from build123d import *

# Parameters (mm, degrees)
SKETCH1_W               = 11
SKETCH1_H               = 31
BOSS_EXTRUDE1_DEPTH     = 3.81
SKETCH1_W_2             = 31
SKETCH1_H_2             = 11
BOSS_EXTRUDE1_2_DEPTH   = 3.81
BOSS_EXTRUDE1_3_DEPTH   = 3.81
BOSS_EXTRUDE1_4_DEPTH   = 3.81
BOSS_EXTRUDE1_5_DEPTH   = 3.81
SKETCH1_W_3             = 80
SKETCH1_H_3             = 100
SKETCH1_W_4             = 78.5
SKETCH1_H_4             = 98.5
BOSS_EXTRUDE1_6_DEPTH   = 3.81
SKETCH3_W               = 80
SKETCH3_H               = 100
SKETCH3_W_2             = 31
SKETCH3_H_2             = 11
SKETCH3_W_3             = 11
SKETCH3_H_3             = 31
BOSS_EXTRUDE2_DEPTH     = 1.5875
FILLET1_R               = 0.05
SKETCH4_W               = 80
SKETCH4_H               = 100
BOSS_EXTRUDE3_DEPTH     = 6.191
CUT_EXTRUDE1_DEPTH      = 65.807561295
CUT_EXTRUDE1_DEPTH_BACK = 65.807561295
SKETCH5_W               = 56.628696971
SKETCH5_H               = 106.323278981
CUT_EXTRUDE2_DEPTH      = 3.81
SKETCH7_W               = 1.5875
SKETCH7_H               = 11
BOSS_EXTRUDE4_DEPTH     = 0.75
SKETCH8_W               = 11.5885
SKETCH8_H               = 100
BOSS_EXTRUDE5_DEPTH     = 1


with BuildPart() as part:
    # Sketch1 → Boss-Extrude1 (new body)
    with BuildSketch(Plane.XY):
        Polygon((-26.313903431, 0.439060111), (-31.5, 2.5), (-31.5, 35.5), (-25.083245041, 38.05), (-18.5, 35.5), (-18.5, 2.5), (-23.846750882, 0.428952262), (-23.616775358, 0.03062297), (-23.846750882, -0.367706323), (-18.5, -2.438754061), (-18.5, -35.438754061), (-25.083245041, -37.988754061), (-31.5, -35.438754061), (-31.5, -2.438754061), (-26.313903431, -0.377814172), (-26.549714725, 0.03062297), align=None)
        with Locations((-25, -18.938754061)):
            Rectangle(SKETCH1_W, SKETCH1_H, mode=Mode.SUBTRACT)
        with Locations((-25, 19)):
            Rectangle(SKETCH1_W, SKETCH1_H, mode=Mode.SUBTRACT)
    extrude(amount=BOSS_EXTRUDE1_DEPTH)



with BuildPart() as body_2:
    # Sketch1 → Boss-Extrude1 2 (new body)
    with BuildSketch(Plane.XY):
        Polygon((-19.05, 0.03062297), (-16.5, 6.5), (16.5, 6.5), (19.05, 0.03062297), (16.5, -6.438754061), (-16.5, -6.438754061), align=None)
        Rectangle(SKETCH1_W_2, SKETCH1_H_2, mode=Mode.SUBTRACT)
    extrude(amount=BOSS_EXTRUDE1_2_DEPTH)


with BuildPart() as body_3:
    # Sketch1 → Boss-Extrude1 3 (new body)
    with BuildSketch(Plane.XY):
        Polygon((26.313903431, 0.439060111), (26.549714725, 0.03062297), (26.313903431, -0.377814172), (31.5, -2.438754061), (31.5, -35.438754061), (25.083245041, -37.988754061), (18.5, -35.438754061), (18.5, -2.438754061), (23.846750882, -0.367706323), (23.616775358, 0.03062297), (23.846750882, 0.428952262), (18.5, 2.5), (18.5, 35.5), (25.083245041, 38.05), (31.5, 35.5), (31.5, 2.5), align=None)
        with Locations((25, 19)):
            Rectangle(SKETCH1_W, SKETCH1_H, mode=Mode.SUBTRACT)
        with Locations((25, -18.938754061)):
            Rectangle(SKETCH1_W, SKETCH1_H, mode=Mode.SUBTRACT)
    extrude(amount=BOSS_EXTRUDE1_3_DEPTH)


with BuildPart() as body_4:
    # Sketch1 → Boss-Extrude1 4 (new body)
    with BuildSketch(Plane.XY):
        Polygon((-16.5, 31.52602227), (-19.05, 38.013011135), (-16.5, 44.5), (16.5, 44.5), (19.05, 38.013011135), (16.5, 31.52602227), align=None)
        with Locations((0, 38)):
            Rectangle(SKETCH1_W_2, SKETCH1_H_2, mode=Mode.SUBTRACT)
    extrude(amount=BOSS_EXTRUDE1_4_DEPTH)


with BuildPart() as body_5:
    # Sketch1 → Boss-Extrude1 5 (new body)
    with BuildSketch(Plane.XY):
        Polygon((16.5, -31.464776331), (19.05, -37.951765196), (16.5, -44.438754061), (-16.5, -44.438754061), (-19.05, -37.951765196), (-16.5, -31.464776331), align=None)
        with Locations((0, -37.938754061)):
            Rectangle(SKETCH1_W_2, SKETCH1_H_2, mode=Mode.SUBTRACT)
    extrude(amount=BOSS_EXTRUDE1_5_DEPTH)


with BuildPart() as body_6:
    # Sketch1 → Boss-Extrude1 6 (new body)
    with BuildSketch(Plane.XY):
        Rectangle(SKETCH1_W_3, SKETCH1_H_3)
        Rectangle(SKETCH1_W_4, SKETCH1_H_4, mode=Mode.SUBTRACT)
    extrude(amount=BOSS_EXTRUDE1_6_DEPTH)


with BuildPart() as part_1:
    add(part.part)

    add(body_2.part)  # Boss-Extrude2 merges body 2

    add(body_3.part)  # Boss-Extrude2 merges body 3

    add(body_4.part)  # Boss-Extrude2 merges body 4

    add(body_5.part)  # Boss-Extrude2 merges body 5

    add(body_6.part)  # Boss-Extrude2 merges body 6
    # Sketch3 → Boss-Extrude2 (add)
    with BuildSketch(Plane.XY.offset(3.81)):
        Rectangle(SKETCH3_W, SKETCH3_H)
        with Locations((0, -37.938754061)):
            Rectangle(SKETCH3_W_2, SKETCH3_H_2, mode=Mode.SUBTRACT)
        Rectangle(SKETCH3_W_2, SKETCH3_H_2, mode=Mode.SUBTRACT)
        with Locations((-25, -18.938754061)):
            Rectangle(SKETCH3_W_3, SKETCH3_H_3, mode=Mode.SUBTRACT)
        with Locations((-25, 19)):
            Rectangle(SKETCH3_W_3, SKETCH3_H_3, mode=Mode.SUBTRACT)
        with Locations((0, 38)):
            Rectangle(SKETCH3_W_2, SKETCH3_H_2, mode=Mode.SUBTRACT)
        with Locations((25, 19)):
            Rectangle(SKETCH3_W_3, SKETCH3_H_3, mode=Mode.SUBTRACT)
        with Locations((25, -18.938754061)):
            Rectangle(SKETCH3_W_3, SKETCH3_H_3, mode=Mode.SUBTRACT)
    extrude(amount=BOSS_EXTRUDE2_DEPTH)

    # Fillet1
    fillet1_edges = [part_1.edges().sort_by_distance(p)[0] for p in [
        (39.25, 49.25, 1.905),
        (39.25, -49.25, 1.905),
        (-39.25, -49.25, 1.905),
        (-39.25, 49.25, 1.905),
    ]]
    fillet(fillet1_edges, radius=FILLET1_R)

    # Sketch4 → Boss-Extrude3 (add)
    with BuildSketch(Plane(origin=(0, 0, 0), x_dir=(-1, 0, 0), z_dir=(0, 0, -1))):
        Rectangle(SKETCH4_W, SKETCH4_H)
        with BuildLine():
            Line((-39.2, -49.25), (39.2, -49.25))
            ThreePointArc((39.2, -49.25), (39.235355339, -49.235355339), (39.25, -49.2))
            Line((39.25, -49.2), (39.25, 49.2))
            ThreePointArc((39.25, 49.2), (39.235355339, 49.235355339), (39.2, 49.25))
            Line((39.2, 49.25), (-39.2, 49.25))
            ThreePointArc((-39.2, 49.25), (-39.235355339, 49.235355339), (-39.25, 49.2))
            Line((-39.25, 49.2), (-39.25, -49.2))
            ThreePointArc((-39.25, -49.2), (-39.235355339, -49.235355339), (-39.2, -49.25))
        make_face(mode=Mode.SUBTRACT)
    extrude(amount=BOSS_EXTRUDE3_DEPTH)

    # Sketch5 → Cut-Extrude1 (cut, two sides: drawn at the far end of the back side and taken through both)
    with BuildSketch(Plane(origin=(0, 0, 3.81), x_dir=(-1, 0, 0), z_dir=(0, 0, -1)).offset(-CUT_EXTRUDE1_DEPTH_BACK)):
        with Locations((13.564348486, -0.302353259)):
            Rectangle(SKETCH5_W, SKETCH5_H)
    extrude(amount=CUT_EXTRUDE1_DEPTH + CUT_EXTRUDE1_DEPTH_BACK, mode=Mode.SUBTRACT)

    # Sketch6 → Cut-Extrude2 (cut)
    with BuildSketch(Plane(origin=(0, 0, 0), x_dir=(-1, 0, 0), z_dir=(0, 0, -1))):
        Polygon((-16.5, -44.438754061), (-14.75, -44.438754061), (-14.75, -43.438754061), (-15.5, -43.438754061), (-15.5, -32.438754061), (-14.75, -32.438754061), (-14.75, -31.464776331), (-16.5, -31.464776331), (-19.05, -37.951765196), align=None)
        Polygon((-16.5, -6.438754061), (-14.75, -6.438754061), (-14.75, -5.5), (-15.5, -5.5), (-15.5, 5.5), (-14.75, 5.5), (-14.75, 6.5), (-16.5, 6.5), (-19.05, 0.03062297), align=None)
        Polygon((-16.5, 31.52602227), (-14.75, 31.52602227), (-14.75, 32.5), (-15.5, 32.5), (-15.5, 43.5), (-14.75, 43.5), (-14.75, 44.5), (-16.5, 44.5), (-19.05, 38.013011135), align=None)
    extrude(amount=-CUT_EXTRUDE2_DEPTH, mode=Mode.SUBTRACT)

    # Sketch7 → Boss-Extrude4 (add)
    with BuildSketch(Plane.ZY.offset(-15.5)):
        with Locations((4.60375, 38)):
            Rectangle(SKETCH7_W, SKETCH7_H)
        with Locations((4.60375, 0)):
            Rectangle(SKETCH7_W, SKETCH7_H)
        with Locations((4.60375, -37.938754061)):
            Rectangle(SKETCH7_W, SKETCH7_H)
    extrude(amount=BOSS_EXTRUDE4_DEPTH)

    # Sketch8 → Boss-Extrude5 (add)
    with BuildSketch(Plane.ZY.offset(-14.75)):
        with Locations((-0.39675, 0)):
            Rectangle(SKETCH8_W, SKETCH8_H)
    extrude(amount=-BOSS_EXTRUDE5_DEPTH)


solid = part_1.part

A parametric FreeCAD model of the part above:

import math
import FreeCAD as App
import Part
import Sketcher
from FreeCAD import Vector
Q = App.Units.Quantity


def edges_at(feature, points):
    """Names of the edges that pass closest to the given points."""
    edges = feature.Shape.Edges
    near = lambda p: min(range(len(edges)), key=lambda i: edges[i].distToShape(Part.Vertex(*p))[0])
    return sorted({f"Edge{near(p) + 1}" for p in points})

doc = App.newDocument("Part")
body = doc.addObject("PartDesign::Body", "Body")

# Sketch on XY plane
sketch1 = body.newObject("Sketcher::SketchObject", "Sketch")
sketch1.AttachmentSupport = (doc.getObject("XY_Plane"), [""])
sketch1.MapMode = "FlatFace"
sketch1.addGeometry([
    Part.LineSegment(Vector(-31.5, 2.5, 0), Vector(-26.31, 0.44, 0)),  # 0
    Part.LineSegment(Vector(-26.31, 0.44, 0), Vector(-26.55, 0.03, 0)),  # 1
    Part.LineSegment(Vector(-26.55, 0.03, 0), Vector(-26.31, -0.38, 0)),  # 2
    Part.LineSegment(Vector(-26.31, -0.38, 0), Vector(-31.5, -2.44, 0)),  # 3
    Part.LineSegment(Vector(-31.5, -2.44, 0), Vector(-31.5, -35.44, 0)),  # 4
    Part.LineSegment(Vector(-31.5, -35.44, 0), Vector(-25.08, -37.99, 0)),  # 5
    Part.LineSegment(Vector(-25.08, -37.99, 0), Vector(-18.5, -35.44, 0)),  # 6
    Part.LineSegment(Vector(-18.5, -35.44, 0), Vector(-18.5, -2.44, 0)),  # 7
    Part.LineSegment(Vector(-18.5, -2.44, 0), Vector(-23.85, -0.37, 0)),  # 8
    Part.LineSegment(Vector(-23.85, -0.37, 0), Vector(-23.62, 0.03, 0)),  # 9
    Part.LineSegment(Vector(-23.62, 0.03, 0), Vector(-23.85, 0.43, 0)),  # 10
    Part.LineSegment(Vector(-23.85, 0.43, 0), Vector(-18.5, 2.5, 0)),  # 11
    Part.LineSegment(Vector(-18.5, 2.5, 0), Vector(-18.5, 35.5, 0)),  # 12
    Part.LineSegment(Vector(-18.5, 35.5, 0), Vector(-25.08, 38.05, 0)),  # 13
    Part.LineSegment(Vector(-25.08, 38.05, 0), Vector(-31.5, 35.5, 0)),  # 14
    Part.LineSegment(Vector(-31.5, 35.5, 0), Vector(-31.5, 2.5, 0)),  # 15
    Part.LineSegment(Vector(-30.5, -34.44, 0), Vector(-30.5, -3.44, 0)),  # 16
    Part.LineSegment(Vector(-30.5, -3.44, 0), Vector(-19.5, -3.44, 0)),  # 17
    Part.LineSegment(Vector(-19.5, -3.44, 0), Vector(-19.5, -34.44, 0)),  # 18
    Part.LineSegment(Vector(-19.5, -34.44, 0), Vector(-30.5, -34.44, 0)),  # 19
    Part.LineSegment(Vector(-30.5, 3.5, 0), Vector(-30.5, 34.5, 0)),  # 20
    Part.LineSegment(Vector(-30.5, 34.5, 0), Vector(-19.5, 34.5, 0)),  # 21
    Part.LineSegment(Vector(-19.5, 34.5, 0), Vector(-19.5, 3.5, 0)),  # 22
    Part.LineSegment(Vector(-19.5, 3.5, 0), Vector(-30.5, 3.5, 0)),  # 23
], False)
sketch1.addConstraint([
    Sketcher.Constraint("Coincident", 0, 2, 1, 1),
    Sketcher.Constraint("Coincident", 1, 2, 2, 1),
    Sketcher.Constraint("Coincident", 2, 2, 3, 1),
    Sketcher.Constraint("Coincident", 3, 2, 4, 1),
    Sketcher.Constraint("Coincident", 4, 2, 5, 1),
    Sketcher.Constraint("Coincident", 5, 2, 6, 1),
    Sketcher.Constraint("Coincident", 6, 2, 7, 1),
    Sketcher.Constraint("Coincident", 7, 2, 8, 1),
    Sketcher.Constraint("Coincident", 8, 2, 9, 1),
    Sketcher.Constraint("Coincident", 9, 2, 10, 1),
    Sketcher.Constraint("Coincident", 10, 2, 11, 1),
    Sketcher.Constraint("Coincident", 11, 2, 12, 1),
    Sketcher.Constraint("Coincident", 12, 2, 13, 1),
    Sketcher.Constraint("Coincident", 13, 2, 14, 1),
    Sketcher.Constraint("Coincident", 14, 2, 15, 1),
    Sketcher.Constraint("Coincident", 15, 2, 0, 1),
    Sketcher.Constraint("Coincident", 16, 2, 17, 1),
    Sketcher.Constraint("Coincident", 17, 2, 18, 1),
    Sketcher.Constraint("Coincident", 18, 2, 19, 1),
    Sketcher.Constraint("Coincident", 19, 2, 16, 1),
    Sketcher.Constraint("Coincident", 20, 2, 21, 1),
    Sketcher.Constraint("Coincident", 21, 2, 22, 1),
    Sketcher.Constraint("Coincident", 22, 2, 23, 1),
    Sketcher.Constraint("Coincident", 23, 2, 20, 1),
    Sketcher.Constraint("Vertical", 4),
    Sketcher.Constraint("Vertical", 7),
    Sketcher.Constraint("Vertical", 12),
    Sketcher.Constraint("Vertical", 15),
    Sketcher.Constraint("Vertical", 16),
    Sketcher.Constraint("Horizontal", 17),
    Sketcher.Constraint("Vertical", 18),
    Sketcher.Constraint("Horizontal", 19),
    Sketcher.Constraint("Vertical", 20),
    Sketcher.Constraint("Horizontal", 21),
    Sketcher.Constraint("Vertical", 22),
    Sketcher.Constraint("Horizontal", 23),
    Sketcher.Constraint("Parallel", 0, 5),
    Sketcher.Constraint("Parallel", 1, 9),
    Sketcher.Constraint("Parallel", 2, 10),
    Sketcher.Constraint("Parallel", 6, 11),
    Sketcher.Constraint("Parallel", 8, 13),
    Sketcher.Constraint("Parallel", 3, 14),
    Sketcher.Constraint("Horizontal", 4, 2, 6, 2),
    Sketcher.Constraint("Horizontal", 3, 2, 7, 2),
    Sketcher.Constraint("Horizontal", 1, 2, 9, 2),
    Sketcher.Constraint("Horizontal", 12, 2, 14, 2),
    Sketcher.Constraint("Horizontal", 11, 2, 15, 2),
    Sketcher.Constraint("Vertical", 0, 2, 2, 2),
    Sketcher.Constraint("Vertical", 8, 2, 10, 2),
    Sketcher.Constraint("Vertical", 7, 2, 11, 2),
    Sketcher.Constraint("Vertical", 5, 2, 13, 2),
    Sketcher.Constraint("Vertical", 4, 2, 14, 2),
    Sketcher.Constraint("Vertical", 19, 2, 20, 2),
    Sketcher.Constraint("Vertical", 18, 2, 21, 2),
    Sketcher.Constraint("Equal", 7, 12),
    Sketcher.Constraint("Equal", 18, 20),
    Sketcher.Constraint("Equal", 0, 3),
    Sketcher.Constraint("DistanceX", 17, 1, 17, 2, Q("11 mm")),
    Sketcher.Constraint("DistanceY", 4, 2, 4, 1, Q("33 mm")),
    Sketcher.Constraint("DistanceY", 16, 1, 16, 2, Q("31 mm")),
    Sketcher.Constraint("Angle", 1, Q("-120 deg")),
    Sketcher.Constraint("DistanceX", 4, 2, 6, 2, Q("13 mm")),
    Sketcher.Constraint("DistanceX", 3, 2, 16, 2, Q("1 mm")),
    Sketcher.Constraint("DistanceY", 16, 2, 3, 2, Q("1 mm")),
    Sketcher.Constraint("DistanceY", 20, 2, 14, 2, Q("1 mm")),
    Sketcher.Constraint("DistanceX", 3, 2, -1, 1, Q("31.5 mm")),
    Sketcher.Constraint("DistanceY", -1, 1, 11, 2, Q("2.5 mm")),
    Sketcher.Constraint("DistanceY", -1, 1, 13, 2, Q("38.05 mm")),
    Sketcher.Constraint("Distance", 5, Q("6.904871 mm")),
    Sketcher.Constraint("Distance", 9, Q("0.459951 mm")),
    Sketcher.Constraint("DistanceY", -1, 1, 0, 2, Q("0.43906 mm")),
    Sketcher.Constraint("DistanceX", 8, 2, -1, 1, Q("23.846751 mm")),
])
pad1 = body.newObject("PartDesign::Pad", "Pad")
pad1.Profile = sketch1
pad1.Length = 3.81
body2 = doc.addObject("PartDesign::Body", "Body001")

# Sketch on XY plane
sketch2 = body2.newObject("Sketcher::SketchObject", "Sketch001")
sketch2.AttachmentSupport = (doc.getObject("XY_Plane001"), [""])
sketch2.MapMode = "FlatFace"
sketch2.addGeometry([
    Part.LineSegment(Vector(-16, 6, 0), Vector(-19, 0, 0)),  # 0
    Part.LineSegment(Vector(-19, 0, 0), Vector(-16, -6, 0)),  # 1
    Part.LineSegment(Vector(-16, -6, 0), Vector(16, -6, 0)),  # 2
    Part.LineSegment(Vector(16, -6, 0), Vector(19, 0, 0)),  # 3
    Part.LineSegment(Vector(19, 0, 0), Vector(16, 6, 0)),  # 4
    Part.LineSegment(Vector(16, 6, 0), Vector(-16, 6, 0)),  # 5
    Part.LineSegment(Vector(-16, -6, 0), Vector(-16, 6, 0)),  # 6
    Part.LineSegment(Vector(-16, 6, 0), Vector(16, 6, 0)),  # 7
    Part.LineSegment(Vector(16, 6, 0), Vector(16, -6, 0)),  # 8
    Part.LineSegment(Vector(16, -6, 0), Vector(-16, -6, 0)),  # 9
], False)
sketch2.addConstraint([
    Sketcher.Constraint("Coincident", 0, 2, 1, 1),
    Sketcher.Constraint("Coincident", 1, 2, 2, 1),
    Sketcher.Constraint("Coincident", 2, 2, 3, 1),
    Sketcher.Constraint("Coincident", 3, 2, 4, 1),
    Sketcher.Constraint("Coincident", 4, 2, 5, 1),
    Sketcher.Constraint("Coincident", 5, 2, 0, 1),
    Sketcher.Constraint("Coincident", 6, 2, 7, 1),
    Sketcher.Constraint("Coincident", 7, 2, 8, 1),
    Sketcher.Constraint("Coincident", 8, 2, 9, 1),
    Sketcher.Constraint("Coincident", 9, 2, 6, 1),
    Sketcher.Constraint("Horizontal", 2),
    Sketcher.Constraint("Horizontal", 5),
    Sketcher.Constraint("Vertical", 6),
    Sketcher.Constraint("Horizontal", 7),
    Sketcher.Constraint("Vertical", 8),
    Sketcher.Constraint("Horizontal", 9),
    Sketcher.Constraint("Symmetric", 6, 2, 8, 2, -1, 1),
    Sketcher.Constraint("Symmetric", 0, 2, 3, 2, -2),
    Sketcher.Constraint("Parallel", 0, 3),
    Sketcher.Constraint("Parallel", 1, 4),
    Sketcher.Constraint("Vertical", 2, 2, 4, 2),
    Sketcher.Constraint("Vertical", 1, 2, 5, 2),
    Sketcher.Constraint("DistanceX", 2, 1, 2, 2, Q("33 mm")),
    Sketcher.Constraint("DistanceX", 7, 1, 7, 2, Q("31 mm")),
    Sketcher.Constraint("DistanceY", 6, 1, 6, 2, Q("11 mm")),
    Sketcher.Constraint("DistanceY", 6, 2, 5, 2, Q("1 mm")),
    Sketcher.Constraint("DistanceX", 0, 2, 3, 2, Q("38.1 mm")),
    Sketcher.Constraint("Distance", 0, Q("6.9538 mm")),
])
pad2 = body2.newObject("PartDesign::Pad", "Pad001")
pad2.Profile = sketch2
pad2.Length = 3.81
body3 = doc.addObject("PartDesign::Body", "Body002")

# Sketch on XY plane
sketch3 = body3.newObject("Sketcher::SketchObject", "Sketch002")
sketch3.AttachmentSupport = (doc.getObject("XY_Plane002"), [""])
sketch3.MapMode = "FlatFace"
sketch3.addGeometry([
    Part.LineSegment(Vector(26.55, 0.03, 0), Vector(26.31, 0.44, 0)),  # 0
    Part.LineSegment(Vector(26.31, 0.44, 0), Vector(31.5, 2.5, 0)),  # 1
    Part.LineSegment(Vector(31.5, 2.5, 0), Vector(31.5, 35.5, 0)),  # 2
    Part.LineSegment(Vector(31.5, 35.5, 0), Vector(25.08, 38.05, 0)),  # 3
    Part.LineSegment(Vector(25.08, 38.05, 0), Vector(18.5, 35.5, 0)),  # 4
    Part.LineSegment(Vector(18.5, 35.5, 0), Vector(18.5, 2.5, 0)),  # 5
    Part.LineSegment(Vector(18.5, 2.5, 0), Vector(23.85, 0.43, 0)),  # 6
    Part.LineSegment(Vector(23.85, 0.43, 0), Vector(23.62, 0.03, 0)),  # 7
    Part.LineSegment(Vector(23.62, 0.03, 0), Vector(23.85, -0.37, 0)),  # 8
    Part.LineSegment(Vector(23.85, -0.37, 0), Vector(18.5, -2.44, 0)),  # 9
    Part.LineSegment(Vector(18.5, -2.44, 0), Vector(18.5, -35.44, 0)),  # 10
    Part.LineSegment(Vector(18.5, -35.44, 0), Vector(25.08, -37.99, 0)),  # 11
    Part.LineSegment(Vector(25.08, -37.99, 0), Vector(31.5, -35.44, 0)),  # 12
    Part.LineSegment(Vector(31.5, -35.44, 0), Vector(31.5, -2.44, 0)),  # 13
    Part.LineSegment(Vector(31.5, -2.44, 0), Vector(26.31, -0.38, 0)),  # 14
    Part.LineSegment(Vector(26.31, -0.38, 0), Vector(26.55, 0.03, 0)),  # 15
    Part.LineSegment(Vector(19.5, -34.44, 0), Vector(19.5, -3.44, 0)),  # 16
    Part.LineSegment(Vector(19.5, -3.44, 0), Vector(30.5, -3.44, 0)),  # 17
    Part.LineSegment(Vector(30.5, -3.44, 0), Vector(30.5, -34.44, 0)),  # 18
    Part.LineSegment(Vector(30.5, -34.44, 0), Vector(19.5, -34.44, 0)),  # 19
    Part.LineSegment(Vector(19.5, 3.5, 0), Vector(19.5, 34.5, 0)),  # 20
    Part.LineSegment(Vector(19.5, 34.5, 0), Vector(30.5, 34.5, 0)),  # 21
    Part.LineSegment(Vector(30.5, 34.5, 0), Vector(30.5, 3.5, 0)),  # 22
    Part.LineSegment(Vector(30.5, 3.5, 0), Vector(19.5, 3.5, 0)),  # 23
], False)
sketch3.addConstraint([
    Sketcher.Constraint("Coincident", 0, 2, 1, 1),
    Sketcher.Constraint("Coincident", 1, 2, 2, 1),
    Sketcher.Constraint("Coincident", 2, 2, 3, 1),
    Sketcher.Constraint("Coincident", 3, 2, 4, 1),
    Sketcher.Constraint("Coincident", 4, 2, 5, 1),
    Sketcher.Constraint("Coincident", 5, 2, 6, 1),
    Sketcher.Constraint("Coincident", 6, 2, 7, 1),
    Sketcher.Constraint("Coincident", 7, 2, 8, 1),
    Sketcher.Constraint("Coincident", 8, 2, 9, 1),
    Sketcher.Constraint("Coincident", 9, 2, 10, 1),
    Sketcher.Constraint("Coincident", 10, 2, 11, 1),
    Sketcher.Constraint("Coincident", 11, 2, 12, 1),
    Sketcher.Constraint("Coincident", 12, 2, 13, 1),
    Sketcher.Constraint("Coincident", 13, 2, 14, 1),
    Sketcher.Constraint("Coincident", 14, 2, 15, 1),
    Sketcher.Constraint("Coincident", 15, 2, 0, 1),
    Sketcher.Constraint("Coincident", 16, 2, 17, 1),
    Sketcher.Constraint("Coincident", 17, 2, 18, 1),
    Sketcher.Constraint("Coincident", 18, 2, 19, 1),
    Sketcher.Constraint("Coincident", 19, 2, 16, 1),
    Sketcher.Constraint("Coincident", 20, 2, 21, 1),
    Sketcher.Constraint("Coincident", 21, 2, 22, 1),
    Sketcher.Constraint("Coincident", 22, 2, 23, 1),
    Sketcher.Constraint("Coincident", 23, 2, 20, 1),
    Sketcher.Constraint("Vertical", 2),
    Sketcher.Constraint("Vertical", 5),
    Sketcher.Constraint("Vertical", 10),
    Sketcher.Constraint("Vertical", 13),
    Sketcher.Constraint("Vertical", 16),
    Sketcher.Constraint("Horizontal", 17),
    Sketcher.Constraint("Vertical", 18),
    Sketcher.Constraint("Horizontal", 19),
    Sketcher.Constraint("Vertical", 20),
    Sketcher.Constraint("Horizontal", 21),
    Sketcher.Constraint("Vertical", 22),
    Sketcher.Constraint("Horizontal", 23),
    Sketcher.Constraint("Parallel", 0, 8),
    Sketcher.Constraint("Parallel", 4, 9),
    Sketcher.Constraint("Parallel", 6, 11),
    Sketcher.Constraint("Parallel", 1, 12),
    Sketcher.Constraint("Parallel", 3, 14),
    Sketcher.Constraint("Parallel", 7, 15),
    Sketcher.Constraint("Horizontal", 2, 2, 4, 2),
    Sketcher.Constraint("Horizontal", 1, 2, 5, 2),
    Sketcher.Constraint("Horizontal", 10, 2, 12, 2),
    Sketcher.Constraint("Horizontal", 9, 2, 13, 2),
    Sketcher.Constraint("Horizontal", 7, 2, 15, 2),
    Sketcher.Constraint("Vertical", 6, 2, 8, 2),
    Sketcher.Constraint("Vertical", 5, 2, 9, 2),
    Sketcher.Constraint("Vertical", 3, 2, 11, 2),
    Sketcher.Constraint("Vertical", 2, 2, 12, 2),
    Sketcher.Constraint("Vertical", 0, 2, 14, 2),
    Sketcher.Constraint("Vertical", 19, 2, 20, 2),
    Sketcher.Constraint("Vertical", 18, 2, 21, 2),
    Sketcher.Constraint("Equal", 5, 10),
    Sketcher.Constraint("Equal", 18, 20),
    Sketcher.Constraint("Equal", 6, 9),
    Sketcher.Constraint("DistanceX", 17, 1, 17, 2, Q("11 mm")),
    Sketcher.Constraint("DistanceY", 2, 1, 2, 2, Q("33 mm")),
    Sketcher.Constraint("DistanceY", 16, 1, 16, 2, Q("31 mm")),
    Sketcher.Constraint("Angle", 0, Q("120 deg")),
    Sketcher.Constraint("DistanceX", 4, 2, 2, 2, Q("13 mm")),
    Sketcher.Constraint("DistanceX", 9, 2, 16, 2, Q("1 mm")),
    Sketcher.Constraint("DistanceY", 16, 2, 9, 2, Q("1 mm")),
    Sketcher.Constraint("DistanceY", 20, 2, 4, 2, Q("1 mm")),
    Sketcher.Constraint("DistanceX", -1, 1, 1, 2, Q("31.5 mm")),
    Sketcher.Constraint("DistanceY", -1, 1, 1, 2, Q("2.5 mm")),
    Sketcher.Constraint("DistanceY", -1, 1, 3, 2, Q("38.05 mm")),
    Sketcher.Constraint("Distance", 3, Q("6.904871 mm")),
    Sketcher.Constraint("Distance", 7, Q("0.459951 mm")),
    Sketcher.Constraint("DistanceY", -1, 1, 0, 2, Q("0.43906 mm")),
    Sketcher.Constraint("DistanceX", -1, 1, 6, 2, Q("23.846751 mm")),
])
pad3 = body3.newObject("PartDesign::Pad", "Pad002")
pad3.Profile = sketch3
pad3.Length = 3.81
body4 = doc.addObject("PartDesign::Body", "Body003")

# Sketch on XY plane
sketch4 = body4.newObject("Sketcher::SketchObject", "Sketch003")
sketch4.AttachmentSupport = (doc.getObject("XY_Plane003"), [""])
sketch4.MapMode = "FlatFace"
sketch4.addGeometry([
    Part.LineSegment(Vector(-19, 38, 0), Vector(-16, 32, 0)),  # 0
    Part.LineSegment(Vector(-16, 32, 0), Vector(16, 32, 0)),  # 1
    Part.LineSegment(Vector(16, 32, 0), Vector(19, 38, 0)),  # 2
    Part.LineSegment(Vector(19, 38, 0), Vector(16, 44, 0)),  # 3
    Part.LineSegment(Vector(16, 44, 0), Vector(-16, 44, 0)),  # 4
    Part.LineSegment(Vector(-16, 44, 0), Vector(-19, 38, 0)),  # 5
    Part.LineSegment(Vector(-16, 32, 0), Vector(-16, 44, 0)),  # 6
    Part.LineSegment(Vector(-16, 44, 0), Vector(16, 44, 0)),  # 7
    Part.LineSegment(Vector(16, 44, 0), Vector(16, 32, 0)),  # 8
    Part.LineSegment(Vector(16, 32, 0), Vector(-16, 32, 0)),  # 9
], False)
sketch4.addConstraint([
    Sketcher.Constraint("Coincident", 0, 2, 1, 1),
    Sketcher.Constraint("Coincident", 1, 2, 2, 1),
    Sketcher.Constraint("Coincident", 2, 2, 3, 1),
    Sketcher.Constraint("Coincident", 3, 2, 4, 1),
    Sketcher.Constraint("Coincident", 4, 2, 5, 1),
    Sketcher.Constraint("Coincident", 5, 2, 0, 1),
    Sketcher.Constraint("Coincident", 6, 2, 7, 1),
    Sketcher.Constraint("Coincident", 7, 2, 8, 1),
    Sketcher.Constraint("Coincident", 8, 2, 9, 1),
    Sketcher.Constraint("Coincident", 9, 2, 6, 1),
    Sketcher.Constraint("Horizontal", 1),
    Sketcher.Constraint("Horizontal", 4),
    Sketcher.Constraint("Vertical", 6),
    Sketcher.Constraint("Horizontal", 7),
    Sketcher.Constraint("Vertical", 8),
    Sketcher.Constraint("Horizontal", 9),
    Sketcher.Constraint("Symmetric", 2, 2, 5, 2, -2),
    Sketcher.Constraint("Parallel", 0, 3),
    Sketcher.Constraint("Parallel", 2, 5),
    Sketcher.Constraint("Vertical", 1, 2, 3, 2),
    Sketcher.Constraint("Vertical", 0, 2, 4, 2),
    Sketcher.Constraint("DistanceX", 1, 1, 1, 2, Q("33 mm")),
    Sketcher.Constraint("DistanceX", 7, 1, 7, 2, Q("31 mm")),
    Sketcher.Constraint("DistanceY", 6, 1, 6, 2, Q("11 mm")),
    Sketcher.Constraint("DistanceX", 4, 2, 6, 2, Q("1 mm")),
    Sketcher.Constraint("DistanceY", 6, 2, 4, 2, Q("1 mm")),
    Sketcher.Constraint("DistanceY", -1, 1, 3, 2, Q("44.5 mm")),
    Sketcher.Constraint("DistanceX", 5, 2, 2, 2, Q("38.1 mm")),
    Sketcher.Constraint("Distance", 0, Q("6.970188 mm")),
])
pad4 = body4.newObject("PartDesign::Pad", "Pad003")
pad4.Profile = sketch4
pad4.Length = 3.81
body5 = doc.addObject("PartDesign::Body", "Body004")

# Sketch on XY plane
sketch5 = body5.newObject("Sketcher::SketchObject", "Sketch004")
sketch5.AttachmentSupport = (doc.getObject("XY_Plane004"), [""])
sketch5.MapMode = "FlatFace"
sketch5.addGeometry([
    Part.LineSegment(Vector(19, -38, 0), Vector(16, -31, 0)),  # 0
    Part.LineSegment(Vector(16, -31, 0), Vector(-16, -31, 0)),  # 1
    Part.LineSegment(Vector(-16, -31, 0), Vector(-19, -38, 0)),  # 2
    Part.LineSegment(Vector(-19, -38, 0), Vector(-16, -44, 0)),  # 3
    Part.LineSegment(Vector(-16, -44, 0), Vector(16, -44, 0)),  # 4
    Part.LineSegment(Vector(16, -44, 0), Vector(19, -38, 0)),  # 5
    Part.LineSegment(Vector(-16, -43, 0), Vector(-16, -32, 0)),  # 6
    Part.LineSegment(Vector(-16, -32, 0), Vector(16, -32, 0)),  # 7
    Part.LineSegment(Vector(16, -32, 0), Vector(16, -43, 0)),  # 8
    Part.LineSegment(Vector(16, -43, 0), Vector(-16, -43, 0)),  # 9
], False)
sketch5.addConstraint([
    Sketcher.Constraint("Coincident", 0, 2, 1, 1),
    Sketcher.Constraint("Coincident", 1, 2, 2, 1),
    Sketcher.Constraint("Coincident", 2, 2, 3, 1),
    Sketcher.Constraint("Coincident", 3, 2, 4, 1),
    Sketcher.Constraint("Coincident", 4, 2, 5, 1),
    Sketcher.Constraint("Coincident", 5, 2, 0, 1),
    Sketcher.Constraint("Coincident", 6, 2, 7, 1),
    Sketcher.Constraint("Coincident", 7, 2, 8, 1),
    Sketcher.Constraint("Coincident", 8, 2, 9, 1),
    Sketcher.Constraint("Coincident", 9, 2, 6, 1),
    Sketcher.Constraint("Horizontal", 1),
    Sketcher.Constraint("Horizontal", 4),
    Sketcher.Constraint("Vertical", 6),
    Sketcher.Constraint("Horizontal", 7),
    Sketcher.Constraint("Vertical", 8),
    Sketcher.Constraint("Horizontal", 9),
    Sketcher.Constraint("Symmetric", 2, 2, 5, 2, -2),
    Sketcher.Constraint("Parallel", 0, 3),
    Sketcher.Constraint("Parallel", 2, 5),
    Sketcher.Constraint("Vertical", 1, 2, 3, 2),
    Sketcher.Constraint("Vertical", 0, 2, 4, 2),
    Sketcher.Constraint("DistanceX", 1, 2, 1, 1, Q("33 mm")),
    Sketcher.Constraint("DistanceX", 7, 1, 7, 2, Q("31 mm")),
    Sketcher.Constraint("DistanceY", 6, 1, 6, 2, Q("11 mm")),
    Sketcher.Constraint("DistanceX", 1, 2, 6, 2, Q("1 mm")),
    Sketcher.Constraint("DistanceY", 3, 2, 6, 2, Q("12 mm")),
    Sketcher.Constraint("DistanceX", 2, 2, 5, 2, Q("38.1 mm")),
    Sketcher.Constraint("Distance", 0, Q("6.970188 mm")),
    Sketcher.Constraint("DistanceY", 0, 2, -1, 1, Q("31.464776 mm")),
])
pad5 = body5.newObject("PartDesign::Pad", "Pad004")
pad5.Profile = sketch5
pad5.Length = 3.81
body6 = doc.addObject("PartDesign::Body", "Body005")

# Sketch on XY plane
sketch6 = body6.newObject("Sketcher::SketchObject", "Sketch005")
sketch6.AttachmentSupport = (doc.getObject("XY_Plane005"), [""])
sketch6.MapMode = "FlatFace"
sketch6.addGeometry([
    Part.LineSegment(Vector(-40, 50, 0), Vector(-40, -50, 0)),  # 0
    Part.LineSegment(Vector(-40, -50, 0), Vector(40, -50, 0)),  # 1
    Part.LineSegment(Vector(40, -50, 0), Vector(40, 50, 0)),  # 2
    Part.LineSegment(Vector(40, 50, 0), Vector(-40, 50, 0)),  # 3
    Part.LineSegment(Vector(39, -49, 0), Vector(-39, -49, 0)),  # 4
    Part.LineSegment(Vector(-39, -49, 0), Vector(-39, 49, 0)),  # 5
    Part.LineSegment(Vector(-39, 49, 0), Vector(39, 49, 0)),  # 6
    Part.LineSegment(Vector(39, 49, 0), Vector(39, -49, 0)),  # 7
], False)
sketch6.addConstraint([
    Sketcher.Constraint("Coincident", 0, 2, 1, 1),
    Sketcher.Constraint("Coincident", 1, 2, 2, 1),
    Sketcher.Constraint("Coincident", 2, 2, 3, 1),
    Sketcher.Constraint("Coincident", 3, 2, 0, 1),
    Sketcher.Constraint("Coincident", 4, 2, 5, 1),
    Sketcher.Constraint("Coincident", 5, 2, 6, 1),
    Sketcher.Constraint("Coincident", 6, 2, 7, 1),
    Sketcher.Constraint("Coincident", 7, 2, 4, 1),
    Sketcher.Constraint("Vertical", 0),
    Sketcher.Constraint("Horizontal", 1),
    Sketcher.Constraint("Vertical", 2),
    Sketcher.Constraint("Horizontal", 3),
    Sketcher.Constraint("Horizontal", 4),
    Sketcher.Constraint("Vertical", 5),
    Sketcher.Constraint("Horizontal", 6),
    Sketcher.Constraint("Vertical", 7),
    Sketcher.Constraint("Symmetric", 0, 2, 2, 2, -1, 1),
    Sketcher.Constraint("Symmetric", 4, 2, 6, 2, -1, 1),
    Sketcher.Constraint("DistanceX", 1, 1, 1, 2, Q("80 mm")),
    Sketcher.Constraint("DistanceY", 0, 2, 0, 1, Q("100 mm")),
    Sketcher.Constraint("DistanceX", 4, 2, 4, 1, Q("78.5 mm")),
    Sketcher.Constraint("DistanceY", 5, 1, 5, 2, Q("98.5 mm")),
])
pad6 = body6.newObject("PartDesign::Pad", "Pad005")
pad6.Profile = sketch6
pad6.Length = 3.81
body.AllowCompound = True
doc.recompute()

boolean = body.newObject("PartDesign::Boolean", "Boolean")
boolean.Type = "Fuse"
boolean.addObjects([body2])
doc.recompute()

boolean2 = body.newObject("PartDesign::Boolean", "Boolean001")
boolean2.Type = "Fuse"
boolean2.addObjects([body3])
doc.recompute()

boolean3 = body.newObject("PartDesign::Boolean", "Boolean002")
boolean3.Type = "Fuse"
boolean3.addObjects([body4])
doc.recompute()

boolean4 = body.newObject("PartDesign::Boolean", "Boolean003")
boolean4.Type = "Fuse"
boolean4.addObjects([body5])
doc.recompute()

boolean5 = body.newObject("PartDesign::Boolean", "Boolean004")
boolean5.Type = "Fuse"
boolean5.addObjects([body6])

# Sketch on XY plane
sketch7 = body.newObject("Sketcher::SketchObject", "Sketch006")
sketch7.AttachmentSupport = (doc.getObject("XY_Plane"), [""])
sketch7.MapMode = "FlatFace"
sketch7.AttachmentOffset = App.Placement(Vector(0, 0, 3.81), App.Rotation())
sketch7.addGeometry([
    Part.LineSegment(Vector(-40, 50, 0), Vector(-40, -50, 0)),  # 0
    Part.LineSegment(Vector(-40, -50, 0), Vector(40, -50, 0)),  # 1
    Part.LineSegment(Vector(40, -50, 0), Vector(40, 50, 0)),  # 2
    Part.LineSegment(Vector(40, 50, 0), Vector(-40, 50, 0)),  # 3
    Part.LineSegment(Vector(-20, -34, 0), Vector(-30, -34, 0)),  # 4
    Part.LineSegment(Vector(-30, -34, 0), Vector(-30, -3, 0)),  # 5
    Part.LineSegment(Vector(-30, -3, 0), Vector(-20, -3, 0)),  # 6
    Part.LineSegment(Vector(-20, -3, 0), Vector(-20, -34, 0)),  # 7
    Part.LineSegment(Vector(16, -43, 0), Vector(-16, -43, 0)),  # 8
    Part.LineSegment(Vector(-16, -43, 0), Vector(-16, -32, 0)),  # 9
    Part.LineSegment(Vector(-16, -32, 0), Vector(16, -32, 0)),  # 10
    Part.LineSegment(Vector(16, -32, 0), Vector(16, -43, 0)),  # 11
    Part.LineSegment(Vector(16, -6, 0), Vector(-16, -6, 0)),  # 12
    Part.LineSegment(Vector(-16, -6, 0), Vector(-16, 6, 0)),  # 13
    Part.LineSegment(Vector(-16, 6, 0), Vector(16, 6, 0)),  # 14
    Part.LineSegment(Vector(16, 6, 0), Vector(16, -6, 0)),  # 15
    Part.LineSegment(Vector(30, -34, 0), Vector(20, -34, 0)),  # 16
    Part.LineSegment(Vector(20, -34, 0), Vector(20, -3, 0)),  # 17
    Part.LineSegment(Vector(20, -3, 0), Vector(30, -3, 0)),  # 18
    Part.LineSegment(Vector(30, -3, 0), Vector(30, -34, 0)),  # 19
    Part.LineSegment(Vector(-20, 4, 0), Vector(-30, 4, 0)),  # 20
    Part.LineSegment(Vector(-30, 4, 0), Vector(-30, 34, 0)),  # 21
    Part.LineSegment(Vector(-30, 34, 0), Vector(-20, 34, 0)),  # 22
    Part.LineSegment(Vector(-20, 34, 0), Vector(-20, 4, 0)),  # 23
    Part.LineSegment(Vector(30, 4, 0), Vector(20, 4, 0)),  # 24
    Part.LineSegment(Vector(20, 4, 0), Vector(20, 34, 0)),  # 25
    Part.LineSegment(Vector(20, 34, 0), Vector(30, 34, 0)),  # 26
    Part.LineSegment(Vector(30, 34, 0), Vector(30, 4, 0)),  # 27
    Part.LineSegment(Vector(16, 32, 0), Vector(-16, 32, 0)),  # 28
    Part.LineSegment(Vector(-16, 32, 0), Vector(-16, 44, 0)),  # 29
    Part.LineSegment(Vector(-16, 44, 0), Vector(16, 44, 0)),  # 30
    Part.LineSegment(Vector(16, 44, 0), Vector(16, 32, 0)),  # 31
], False)
sketch7.addConstraint([
    Sketcher.Constraint("Coincident", 0, 2, 1, 1),
    Sketcher.Constraint("Coincident", 1, 2, 2, 1),
    Sketcher.Constraint("Coincident", 2, 2, 3, 1),
    Sketcher.Constraint("Coincident", 3, 2, 0, 1),
    Sketcher.Constraint("Coincident", 4, 2, 5, 1),
    Sketcher.Constraint("Coincident", 5, 2, 6, 1),
    Sketcher.Constraint("Coincident", 6, 2, 7, 1),
    Sketcher.Constraint("Coincident", 7, 2, 4, 1),
    Sketcher.Constraint("Coincident", 8, 2, 9, 1),
    Sketcher.Constraint("Coincident", 9, 2, 10, 1),
    Sketcher.Constraint("Coincident", 10, 2, 11, 1),
    Sketcher.Constraint("Coincident", 11, 2, 8, 1),
    Sketcher.Constraint("Coincident", 12, 2, 13, 1),
    Sketcher.Constraint("Coincident", 13, 2, 14, 1),
    Sketcher.Constraint("Coincident", 14, 2, 15, 1),
    Sketcher.Constraint("Coincident", 15, 2, 12, 1),
    Sketcher.Constraint("Coincident", 16, 2, 17, 1),
    Sketcher.Constraint("Coincident", 17, 2, 18, 1),
    Sketcher.Constraint("Coincident", 18, 2, 19, 1),
    Sketcher.Constraint("Coincident", 19, 2, 16, 1),
    Sketcher.Constraint("Coincident", 20, 2, 21, 1),
    Sketcher.Constraint("Coincident", 21, 2, 22, 1),
    Sketcher.Constraint("Coincident", 22, 2, 23, 1),
    Sketcher.Constraint("Coincident", 23, 2, 20, 1),
    Sketcher.Constraint("Coincident", 24, 2, 25, 1),
    Sketcher.Constraint("Coincident", 25, 2, 26, 1),
    Sketcher.Constraint("Coincident", 26, 2, 27, 1),
    Sketcher.Constraint("Coincident", 27, 2, 24, 1),
    Sketcher.Constraint("Coincident", 28, 2, 29, 1),
    Sketcher.Constraint("Coincident", 29, 2, 30, 1),
    Sketcher.Constraint("Coincident", 30, 2, 31, 1),
    Sketcher.Constraint("Coincident", 31, 2, 28, 1),
    Sketcher.Constraint("Vertical", 0),
    Sketcher.Constraint("Horizontal", 1),
    Sketcher.Constraint("Vertical", 2),
    Sketcher.Constraint("Horizontal", 3),
    Sketcher.Constraint("Horizontal", 4),
    Sketcher.Constraint("Vertical", 5),
    Sketcher.Constraint("Horizontal", 6),
    Sketcher.Constraint("Vertical", 7),
    Sketcher.Constraint("Horizontal", 8),
    Sketcher.Constraint("Vertical", 9),
    Sketcher.Constraint("Horizontal", 10),
    Sketcher.Constraint("Vertical", 11),
    Sketcher.Constraint("Horizontal", 12),
    Sketcher.Constraint("Vertical", 13),
    Sketcher.Constraint("Horizontal", 14),
    Sketcher.Constraint("Vertical", 15),
    Sketcher.Constraint("Horizontal", 16),
    Sketcher.Constraint("Vertical", 17),
    Sketcher.Constraint("Horizontal", 18),
    Sketcher.Constraint("Vertical", 19),
    Sketcher.Constraint("Horizontal", 20),
    Sketcher.Constraint("Vertical", 21),
    Sketcher.Constraint("Horizontal", 22),
    Sketcher.Constraint("Vertical", 23),
    Sketcher.Constraint("Horizontal", 24),
    Sketcher.Constraint("Vertical", 25),
    Sketcher.Constraint("Horizontal", 26),
    Sketcher.Constraint("Vertical", 27),
    Sketcher.Constraint("Horizontal", 28),
    Sketcher.Constraint("Vertical", 29),
    Sketcher.Constraint("Horizontal", 30),
    Sketcher.Constraint("Vertical", 31),
    Sketcher.Constraint("Symmetric", 0, 2, 2, 2, -1, 1),
    Sketcher.Constraint("Symmetric", 12, 2, 14, 2, -1, 1),
    Sketcher.Constraint("Symmetric", 7, 2, 16, 2, -2),
    Sketcher.Constraint("Symmetric", 5, 2, 18, 2, -2),
    Sketcher.Constraint("Symmetric", 23, 2, 24, 2, -2),
    Sketcher.Constraint("Symmetric", 21, 2, 26, 2, -2),
    Sketcher.Constraint("Vertical", 9, 2, 12, 2),
    Sketcher.Constraint("Vertical", 11, 2, 14, 2),
    Sketcher.Constraint("Vertical", 5, 2, 20, 2),
    Sketcher.Constraint("Vertical", 7, 2, 22, 2),
    Sketcher.Constraint("Vertical", 13, 2, 28, 2),
    Sketcher.Constraint("Vertical", 15, 2, 30, 2),
    Sketcher.Constraint("Equal", 30, 5),
    Sketcher.Constraint("Equal", 26, 9),
    Sketcher.Constraint("Equal", 11, 13),
    Sketcher.Constraint("Equal", 19, 21),
    Sketcher.Constraint("Equal", 15, 29),
    Sketcher.Constraint("DistanceX", 1, 1, 1, 2, Q("80 mm")),
    Sketcher.Constraint("DistanceX", 4, 2, 4, 1, Q("11 mm")),
    Sketcher.Constraint("DistanceX", 8, 2, 8, 1, Q("31 mm")),
    Sketcher.Constraint("DistanceY", 0, 2, 0, 1, Q("100 mm")),
    Sketcher.Constraint("DistanceX", 7, 2, 8, 2, Q("4 mm")),
    Sketcher.Constraint("DistanceY", 8, 2, 7, 2, Q("9 mm")),
    Sketcher.Constraint("DistanceY", 20, 2, 13, 2, Q("2 mm")),
    Sketcher.Constraint("DistanceY", 28, 2, 22, 2, Q("2 mm")),
    Sketcher.Constraint("DistanceY", 4, 2, -1, 1, Q("34.438754 mm")),
])
pad7 = body.newObject("PartDesign::Pad", "Pad006")
pad7.Profile = sketch7
pad7.Length = 1.5875
doc.recompute()

fillet = body.newObject("PartDesign::Fillet", "Fillet")
fillet.Base = (pad7, edges_at(pad7, [
    (39.25, 49.25, 1.905),
    (39.25, -49.25, 1.905),
    (-39.25, -49.25, 1.905),
    (-39.25, 49.25, 1.905),
]))
fillet.Radius = 0.05

# Sketch on XY plane
sketch8 = body.newObject("Sketcher::SketchObject", "Sketch007")
sketch8.AttachmentSupport = (doc.getObject("XY_Plane"), [""])
sketch8.MapMode = "FlatFace"
sketch8.addGeometry([
    Part.LineSegment(Vector(40, 50, 0), Vector(40, -50, 0)),  # 0
    Part.LineSegment(Vector(40, -50, 0), Vector(-40, -50, 0)),  # 1
    Part.LineSegment(Vector(-40, -50, 0), Vector(-40, 50, 0)),  # 2
    Part.LineSegment(Vector(-40, 50, 0), Vector(40, 50, 0)),  # 3
    Part.LineSegment(Vector(-39.2, -49.25, 0), Vector(39.2, -49.25, 0)),  # 4
    Part.ArcOfCircle(Part.Circle(Vector(39.2, -49.2, 0), Vector(0, 0, 1), 0.05), math.radians(-90), math.radians(0)),  # 5
    Part.LineSegment(Vector(39.25, -49.2, 0), Vector(39.25, 49.2, 0)),  # 6
    Part.ArcOfCircle(Part.Circle(Vector(39.2, 49.2, 0), Vector(0, 0, 1), 0.05), math.radians(0), math.radians(90)),  # 7
    Part.LineSegment(Vector(39.2, 49.25, 0), Vector(-39.2, 49.25, 0)),  # 8
    Part.ArcOfCircle(Part.Circle(Vector(-39.2, 49.2, 0), Vector(0, 0, 1), 0.05), math.radians(90), math.radians(180)),  # 9
    Part.LineSegment(Vector(-39.25, 49.2, 0), Vector(-39.25, -49.2, 0)),  # 10
    Part.ArcOfCircle(Part.Circle(Vector(-39.2, -49.2, 0), Vector(0, 0, 1), 0.05), math.radians(180), math.radians(270)),  # 11
], False)
sketch8.addConstraint([
    Sketcher.Constraint("Coincident", 0, 2, 1, 1),
    Sketcher.Constraint("Coincident", 1, 2, 2, 1),
    Sketcher.Constraint("Coincident", 2, 2, 3, 1),
    Sketcher.Constraint("Coincident", 3, 2, 0, 1),
    Sketcher.Constraint("Tangent", 4, 2, 5, 1),
    Sketcher.Constraint("Tangent", 5, 2, 6, 1),
    Sketcher.Constraint("Tangent", 6, 2, 7, 1),
    Sketcher.Constraint("Tangent", 7, 2, 8, 1),
    Sketcher.Constraint("Tangent", 8, 2, 9, 1),
    Sketcher.Constraint("Tangent", 9, 2, 10, 1),
    Sketcher.Constraint("Tangent", 10, 2, 11, 1),
    Sketcher.Constraint("Tangent", 11, 2, 4, 1),
    Sketcher.Constraint("Vertical", 0),
    Sketcher.Constraint("Horizontal", 1),
    Sketcher.Constraint("Vertical", 2),
    Sketcher.Constraint("Horizontal", 3),
    Sketcher.Constraint("Horizontal", 4),
    Sketcher.Constraint("Vertical", 6),
    Sketcher.Constraint("Horizontal", 8),
    Sketcher.Constraint("Vertical", 10),
    Sketcher.Constraint("Equal", 5, 7),
    Sketcher.Constraint("Equal", 7, 9),
    Sketcher.Constraint("Equal", 9, 11),
    Sketcher.Constraint("Symmetric", 5, 3, 9, 3, -1, 1),
    Sketcher.Constraint("Symmetric", 0, 2, 2, 2, -1, 1),
    Sketcher.Constraint("DistanceX", 1, 2, 1, 1, Q("80 mm")),
    Sketcher.Constraint("DistanceY", 0, 2, 0, 1, Q("100 mm")),
    Sketcher.Constraint("Radius", 5, Q("0.05 mm")),
    Sketcher.Constraint("DistanceX", 4, 1, 4, 2, Q("78.4 mm")),
    Sketcher.Constraint("DistanceY", 6, 1, 6, 2, Q("98.4 mm")),
])
pad8 = body.newObject("PartDesign::Pad", "Pad007")
pad8.Profile = sketch8
pad8.Length = 6.191
pad8.Reversed = True

# Sketch on XY plane
sketch9 = body.newObject("Sketcher::SketchObject", "Sketch008")
sketch9.AttachmentSupport = (doc.getObject("XY_Plane"), [""])
sketch9.MapMode = "FlatFace"
sketch9.AttachmentOffset = App.Placement(Vector(0, 0, 3.81), App.Rotation())
sketch9.addGeometry([
    Part.LineSegment(Vector(15, 53, 0), Vector(15, -53, 0)),
    Part.LineSegment(Vector(15, -53, 0), Vector(-42, -53, 0)),
    Part.LineSegment(Vector(-42, -53, 0), Vector(-42, 53, 0)),
    Part.LineSegment(Vector(-42, 53, 0), Vector(15, 53, 0)),
], False)
sketch9.addConstraint([
    Sketcher.Constraint("Coincident", 0, 2, 1, 1),
    Sketcher.Constraint("Coincident", 1, 2, 2, 1),
    Sketcher.Constraint("Coincident", 2, 2, 3, 1),
    Sketcher.Constraint("Coincident", 3, 2, 0, 1),
    Sketcher.Constraint("Vertical", 0),
    Sketcher.Constraint("Horizontal", 1),
    Sketcher.Constraint("Vertical", 2),
    Sketcher.Constraint("Horizontal", 3),
    Sketcher.Constraint("DistanceX", -1, 1, 0, 2, Q("14.75 mm")),
    Sketcher.Constraint("DistanceY", 0, 2, 0, 1, Q("106.323279 mm")),
    Sketcher.Constraint("DistanceX", 1, 2, 1, 1, Q("56.628697 mm")),
    Sketcher.Constraint("DistanceY", 0, 2, -1, 1, Q("53.463993 mm")),
])
pocket1 = body.newObject("PartDesign::Pocket", "Pocket")
pocket1.Profile = sketch9
pocket1.Type = "ThroughAll"
pocket1.Midplane = True

# Sketch on XY plane
sketch10 = body.newObject("Sketcher::SketchObject", "Sketch009")
sketch10.AttachmentSupport = (doc.getObject("XY_Plane"), [""])
sketch10.MapMode = "FlatFace"
sketch10.addGeometry([
    Part.LineSegment(Vector(16.5, -44.4, 0), Vector(14.8, -44.4, 0)),  # 0
    Part.LineSegment(Vector(14.8, -44.4, 0), Vector(14.8, -43.4, 0)),  # 1
    Part.LineSegment(Vector(14.8, -43.4, 0), Vector(15.5, -43.4, 0)),  # 2
    Part.LineSegment(Vector(15.5, -43.4, 0), Vector(15.5, -32.4, 0)),  # 3
    Part.LineSegment(Vector(15.5, -32.4, 0), Vector(14.8, -32.4, 0)),  # 4
    Part.LineSegment(Vector(14.8, -32.4, 0), Vector(14.8, -31.5, 0)),  # 5
    Part.LineSegment(Vector(14.8, -31.5, 0), Vector(16.5, -31.5, 0)),  # 6
    Part.LineSegment(Vector(16.5, -31.5, 0), Vector(19.1, -38, 0)),  # 7
    Part.LineSegment(Vector(19.1, -38, 0), Vector(16.5, -44.4, 0)),  # 8
    Part.LineSegment(Vector(16.5, -6.4, 0), Vector(14.8, -6.4, 0)),  # 9
    Part.LineSegment(Vector(14.8, -6.4, 0), Vector(14.8, -5.5, 0)),  # 10
    Part.LineSegment(Vector(14.8, -5.5, 0), Vector(15.5, -5.5, 0)),  # 11
    Part.LineSegment(Vector(15.5, -5.5, 0), Vector(15.5, 5.5, 0)),  # 12
    Part.LineSegment(Vector(15.5, 5.5, 0), Vector(14.8, 5.5, 0)),  # 13
    Part.LineSegment(Vector(14.8, 5.5, 0), Vector(14.8, 6.5, 0)),  # 14
    Part.LineSegment(Vector(14.8, 6.5, 0), Vector(16.5, 6.5, 0)),  # 15
    Part.LineSegment(Vector(16.5, 6.5, 0), Vector(19.1, 0, 0)),  # 16
    Part.LineSegment(Vector(19.1, 0, 0), Vector(16.5, -6.4, 0)),  # 17
    Part.LineSegment(Vector(16.5, 31.5, 0), Vector(14.8, 31.5, 0)),  # 18
    Part.LineSegment(Vector(14.8, 31.5, 0), Vector(14.8, 32.5, 0)),  # 19
    Part.LineSegment(Vector(14.8, 32.5, 0), Vector(15.5, 32.5, 0)),  # 20
    Part.LineSegment(Vector(15.5, 32.5, 0), Vector(15.5, 43.5, 0)),  # 21
    Part.LineSegment(Vector(15.5, 43.5, 0), Vector(14.8, 43.5, 0)),  # 22
    Part.LineSegment(Vector(14.8, 43.5, 0), Vector(14.8, 44.5, 0)),  # 23
    Part.LineSegment(Vector(14.8, 44.5, 0), Vector(16.5, 44.5, 0)),  # 24
    Part.LineSegment(Vector(16.5, 44.5, 0), Vector(19.1, 38, 0)),  # 25
    Part.LineSegment(Vector(19.1, 38, 0), Vector(16.5, 31.5, 0)),  # 26
], False)
sketch10.addConstraint([
    Sketcher.Constraint("Coincident", 0, 2, 1, 1),
    Sketcher.Constraint("Coincident", 1, 2, 2, 1),
    Sketcher.Constraint("Coincident", 2, 2, 3, 1),
    Sketcher.Constraint("Coincident", 3, 2, 4, 1),
    Sketcher.Constraint("Coincident", 4, 2, 5, 1),
    Sketcher.Constraint("Coincident", 5, 2, 6, 1),
    Sketcher.Constraint("Coincident", 6, 2, 7, 1),
    Sketcher.Constraint("Coincident", 7, 2, 8, 1),
    Sketcher.Constraint("Coincident", 8, 2, 0, 1),
    Sketcher.Constraint("Coincident", 9, 2, 10, 1),
    Sketcher.Constraint("Coincident", 10, 2, 11, 1),
    Sketcher.Constraint("Coincident", 11, 2, 12, 1),
    Sketcher.Constraint("Coincident", 12, 2, 13, 1),
    Sketcher.Constraint("Coincident", 13, 2, 14, 1),
    Sketcher.Constraint("Coincident", 14, 2, 15, 1),
    Sketcher.Constraint("Coincident", 15, 2, 16, 1),
    Sketcher.Constraint("Coincident", 16, 2, 17, 1),
    Sketcher.Constraint("Coincident", 17, 2, 9, 1),
    Sketcher.Constraint("Coincident", 18, 2, 19, 1),
    Sketcher.Constraint("Coincident", 19, 2, 20, 1),
    Sketcher.Constraint("Coincident", 20, 2, 21, 1),
    Sketcher.Constraint("Coincident", 21, 2, 22, 1),
    Sketcher.Constraint("Coincident", 22, 2, 23, 1),
    Sketcher.Constraint("Coincident", 23, 2, 24, 1),
    Sketcher.Constraint("Coincident", 24, 2, 25, 1),
    Sketcher.Constraint("Coincident", 25, 2, 26, 1),
    Sketcher.Constraint("Coincident", 26, 2, 18, 1),
    Sketcher.Constraint("Horizontal", 0),
    Sketcher.Constraint("Vertical", 1),
    Sketcher.Constraint("Horizontal", 2),
    Sketcher.Constraint("Vertical", 3),
    Sketcher.Constraint("Horizontal", 4),
    Sketcher.Constraint("Vertical", 5),
    Sketcher.Constraint("Horizontal", 6),
    Sketcher.Constraint("Horizontal", 9),
    Sketcher.Constraint("Vertical", 10),
    Sketcher.Constraint("Horizontal", 11),
    Sketcher.Constraint("Vertical", 12),
    Sketcher.Constraint("Horizontal", 13),
    Sketcher.Constraint("Vertical", 14),
    Sketcher.Constraint("Horizontal", 15),
    Sketcher.Constraint("Horizontal", 18),
    Sketcher.Constraint("Vertical", 19),
    Sketcher.Constraint("Horizontal", 20),
    Sketcher.Constraint("Vertical", 21),
    Sketcher.Constraint("Horizontal", 22),
    Sketcher.Constraint("Vertical", 23),
    Sketcher.Constraint("Horizontal", 24),
    Sketcher.Constraint("Symmetric", 10, 2, 13, 2, -1),
    Sketcher.Constraint("Parallel", 7, 25),
    Sketcher.Constraint("Parallel", 8, 26),
    Sketcher.Constraint("Vertical", 1, 2, 4, 2),
    Sketcher.Constraint("Vertical", 6, 2, 8, 2),
    Sketcher.Constraint("Vertical", 5, 2, 9, 2),
    Sketcher.Constraint("Vertical", 3, 2, 11, 2),
    Sketcher.Constraint("Vertical", 8, 2, 15, 2),
    Sketcher.Constraint("Vertical", 7, 2, 16, 2),
    Sketcher.Constraint("Vertical", 15, 2, 17, 2),
    Sketcher.Constraint("Vertical", 14, 2, 18, 2),
    Sketcher.Constraint("Vertical", 12, 2, 20, 2),
    Sketcher.Constraint("Vertical", 19, 2, 22, 2),
    Sketcher.Constraint("Vertical", 17, 2, 24, 2),
    Sketcher.Constraint("Vertical", 16, 2, 25, 2),
    Sketcher.Constraint("Vertical", 24, 2, 26, 2),
    Sketcher.Constraint("Equal", 3, 12),
    Sketcher.Constraint("Equal", 1, 14),
    Sketcher.Constraint("Equal", 5, 19),
    Sketcher.Constraint("Equal", 12, 21),
    Sketcher.Constraint("Equal", 7, 8),
    Sketcher.Constraint("Equal", 16, 17),
    Sketcher.Constraint("DistanceY", 1, 1, 1, 2, Q("1 mm")),
    Sketcher.Constraint("DistanceY", 3, 1, 3, 2, Q("11 mm")),
    Sketcher.Constraint("DistanceX", 3, 2, 6, 2, Q("1 mm")),
    Sketcher.Constraint("DistanceY", 4, 2, 9, 2, Q("26 mm")),
    Sketcher.Constraint("DistanceY", 14, 2, 19, 2, Q("26 mm")),
    Sketcher.Constraint("DistanceX", 0, 2, 0, 1, Q("1.75 mm")),
    Sketcher.Constraint("DistanceX", -1, 1, 2, 2, Q("15.5 mm")),
    Sketcher.Constraint("DistanceX", 1, 2, 7, 2, Q("4.3 mm")),
    Sketcher.Constraint("Distance", 16, Q("6.9538 mm")),
    Sketcher.Constraint("DistanceY", 16, 2, 18, 2, Q("31.495399 mm")),
])
pocket2 = body.newObject("PartDesign::Pocket", "Pocket001")
pocket2.Profile = sketch10
pocket2.Length = 3.81
pocket2.Reversed = True

# Sketch on YZ plane
sketch11 = body.newObject("Sketcher::SketchObject", "Sketch010")
sketch11.AttachmentSupport = (doc.getObject("YZ_Plane"), [""])
sketch11.MapMode = "FlatFace"
sketch11.AttachmentOffset = App.Placement(Vector(0, 0, 15.5), App.Rotation())
sketch11.addGeometry([
    Part.LineSegment(Vector(43.5, 3.8, 0), Vector(32.5, 3.8, 0)),  # 0
    Part.LineSegment(Vector(32.5, 3.8, 0), Vector(32.5, 5.4, 0)),  # 1
    Part.LineSegment(Vector(32.5, 5.4, 0), Vector(43.5, 5.4, 0)),  # 2
    Part.LineSegment(Vector(43.5, 5.4, 0), Vector(43.5, 3.8, 0)),  # 3
    Part.LineSegment(Vector(5.5, 3.8, 0), Vector(-5.5, 3.8, 0)),  # 4
    Part.LineSegment(Vector(-5.5, 3.8, 0), Vector(-5.5, 5.4, 0)),  # 5
    Part.LineSegment(Vector(-5.5, 5.4, 0), Vector(5.5, 5.4, 0)),  # 6
    Part.LineSegment(Vector(5.5, 5.4, 0), Vector(5.5, 3.8, 0)),  # 7
    Part.LineSegment(Vector(-32.4, 3.8, 0), Vector(-43.4, 3.8, 0)),  # 8
    Part.LineSegment(Vector(-43.4, 3.8, 0), Vector(-43.4, 5.4, 0)),  # 9
    Part.LineSegment(Vector(-43.4, 5.4, 0), Vector(-32.4, 5.4, 0)),  # 10
    Part.LineSegment(Vector(-32.4, 5.4, 0), Vector(-32.4, 3.8, 0)),  # 11
], False)
sketch11.addConstraint([
    Sketcher.Constraint("Coincident", 0, 2, 1, 1),
    Sketcher.Constraint("Coincident", 1, 2, 2, 1),
    Sketcher.Constraint("Coincident", 2, 2, 3, 1),
    Sketcher.Constraint("Coincident", 3, 2, 0, 1),
    Sketcher.Constraint("Coincident", 4, 2, 5, 1),
    Sketcher.Constraint("Coincident", 5, 2, 6, 1),
    Sketcher.Constraint("Coincident", 6, 2, 7, 1),
    Sketcher.Constraint("Coincident", 7, 2, 4, 1),
    Sketcher.Constraint("Coincident", 8, 2, 9, 1),
    Sketcher.Constraint("Coincident", 9, 2, 10, 1),
    Sketcher.Constraint("Coincident", 10, 2, 11, 1),
    Sketcher.Constraint("Coincident", 11, 2, 8, 1),
    Sketcher.Constraint("Horizontal", 0),
    Sketcher.Constraint("Vertical", 1),
    Sketcher.Constraint("Horizontal", 2),
    Sketcher.Constraint("Vertical", 3),
    Sketcher.Constraint("Horizontal", 4),
    Sketcher.Constraint("Vertical", 5),
    Sketcher.Constraint("Horizontal", 6),
    Sketcher.Constraint("Vertical", 7),
    Sketcher.Constraint("Horizontal", 8),
    Sketcher.Constraint("Vertical", 9),
    Sketcher.Constraint("Horizontal", 10),
    Sketcher.Constraint("Vertical", 11),
    Sketcher.Constraint("Horizontal", 3, 2, 4, 2),
    Sketcher.Constraint("Horizontal", 2, 2, 5, 2),
    Sketcher.Constraint("Horizontal", 7, 2, 8, 2),
    Sketcher.Constraint("Horizontal", 6, 2, 9, 2),
    Sketcher.Constraint("Equal", 2, 4),
    Sketcher.Constraint("Equal", 6, 8),
    Sketcher.Constraint("DistanceX", 0, 2, 0, 1, Q("11 mm")),
    Sketcher.Constraint("DistanceX", 4, 2, 0, 2, Q("38 mm")),
    Sketcher.Constraint("DistanceX", -1, 1, 0, 2, Q("32.5 mm")),
    Sketcher.Constraint("DistanceY", -1, 1, 0, 2, Q("3.81 mm")),
    Sketcher.Constraint("DistanceY", 1, 1, 1, 2, Q("1.5875 mm")),
    Sketcher.Constraint("DistanceX", 8, 2, -1, 1, Q("43.438754 mm")),
])
pad9 = body.newObject("PartDesign::Pad", "Pad008")
pad9.Profile = sketch11
pad9.Length = 0.75
pad9.Reversed = True

# Sketch on YZ plane
sketch12 = body.newObject("Sketcher::SketchObject", "Sketch011")
sketch12.AttachmentSupport = (doc.getObject("YZ_Plane"), [""])
sketch12.MapMode = "FlatFace"
sketch12.AttachmentOffset = App.Placement(Vector(0, 0, 14.75), App.Rotation())
sketch12.addGeometry([
    Part.LineSegment(Vector(50, -6, 0), Vector(-50, -6, 0)),
    Part.LineSegment(Vector(-50, -6, 0), Vector(-50, 5, 0)),
    Part.LineSegment(Vector(-50, 5, 0), Vector(50, 5, 0)),
    Part.LineSegment(Vector(50, 5, 0), Vector(50, -6, 0)),
], False)
sketch12.addConstraint([
    Sketcher.Constraint("Coincident", 0, 2, 1, 1),
    Sketcher.Constraint("Coincident", 1, 2, 2, 1),
    Sketcher.Constraint("Coincident", 2, 2, 3, 1),
    Sketcher.Constraint("Coincident", 3, 2, 0, 1),
    Sketcher.Constraint("Horizontal", 0),
    Sketcher.Constraint("Vertical", 1),
    Sketcher.Constraint("Horizontal", 2),
    Sketcher.Constraint("Vertical", 3),
    Sketcher.Constraint("DistanceX", 0, 2, 0, 1, Q("100 mm")),
    Sketcher.Constraint("DistanceX", 0, 2, -1, 1, Q("50 mm")),
    Sketcher.Constraint("DistanceY", 1, 1, 1, 2, Q("11.5885 mm")),
    Sketcher.Constraint("DistanceY", 0, 2, -1, 1, Q("6.191 mm")),
])
pad10 = body.newObject("PartDesign::Pad", "Pad009")
pad10.Profile = sketch12
pad10.Length = 1

doc.recompute()
